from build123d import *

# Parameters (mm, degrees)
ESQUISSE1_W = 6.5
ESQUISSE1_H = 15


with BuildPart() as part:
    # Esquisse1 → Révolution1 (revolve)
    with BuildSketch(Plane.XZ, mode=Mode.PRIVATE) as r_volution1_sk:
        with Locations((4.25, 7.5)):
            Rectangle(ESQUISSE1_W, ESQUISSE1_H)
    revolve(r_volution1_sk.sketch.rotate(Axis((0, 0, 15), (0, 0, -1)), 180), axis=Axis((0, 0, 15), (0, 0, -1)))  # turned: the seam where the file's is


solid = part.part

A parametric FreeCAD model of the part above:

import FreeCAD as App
import Part
import Sketcher
from FreeCAD import Vector
Q = App.Units.Quantity


def add_polygon(sketch, points):
    """Adds a closed chain of lines whose ends are joined by coincident constraints."""
    first, n = sketch.GeometryCount, len(points)
    for a, b in zip(points, points[1:] + points[:1]):
        sketch.addGeometry(Part.LineSegment(App.Vector(*a, 0), App.Vector(*b, 0)), False)
    for i in range(n):
        sketch.addConstraint(Sketcher.Constraint("Coincident", first + i, 2, first + (i + 1) % n, 1))

doc = App.newDocument("Part")
body = doc.addObject("PartDesign::Body", "Body")

# Sketch on XZ plane
sketch1 = body.newObject("Sketcher::SketchObject", "Sketch")
sketch1.AttachmentSupport = (doc.getObject("XZ_Plane"), [""])
sketch1.MapMode = "FlatFace"
add_polygon(sketch1, [(1, 15), (1, 0), (7.5, 0), (7.5, 15)])  # lines 0-3
sketch1.addConstraint([
    Sketcher.Constraint("Vertical", 0),
    Sketcher.Constraint("Horizontal", 1),
    Sketcher.Constraint("Vertical", 2),
    Sketcher.Constraint("Horizontal", 3),
    Sketcher.Constraint("PointOnObject", 0, 2, -1),
    Sketcher.Constraint("DistanceY", 0, 2, 0, 1, Q("15 mm")),
    Sketcher.Constraint("DistanceX", 1, 1, 1, 2, Q("6.5 mm")),
    Sketcher.Constraint("DistanceX", -1, 1, 0, 2, Q("1 mm")),
])
revolution = body.newObject("PartDesign::Revolution", "Revolution")
revolution.Profile = sketch1
revolution.ReferenceAxis = (sketch1, ["V_Axis"])
revolution.Angle = 360

doc.recompute()
